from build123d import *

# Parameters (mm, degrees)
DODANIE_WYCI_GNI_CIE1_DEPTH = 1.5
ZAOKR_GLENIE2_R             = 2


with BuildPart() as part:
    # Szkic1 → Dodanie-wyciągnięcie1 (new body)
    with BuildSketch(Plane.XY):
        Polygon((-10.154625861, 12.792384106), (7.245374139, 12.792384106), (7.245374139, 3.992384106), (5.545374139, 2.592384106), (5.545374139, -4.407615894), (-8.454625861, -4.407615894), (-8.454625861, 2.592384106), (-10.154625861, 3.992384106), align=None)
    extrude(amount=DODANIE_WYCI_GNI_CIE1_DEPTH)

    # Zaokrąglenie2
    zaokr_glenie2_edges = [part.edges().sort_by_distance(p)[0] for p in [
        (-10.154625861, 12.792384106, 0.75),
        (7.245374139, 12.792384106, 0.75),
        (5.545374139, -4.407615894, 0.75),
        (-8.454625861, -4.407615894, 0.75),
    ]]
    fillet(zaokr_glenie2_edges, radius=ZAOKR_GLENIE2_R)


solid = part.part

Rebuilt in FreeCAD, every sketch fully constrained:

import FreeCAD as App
import Part
import Sketcher


def edges_at(feature, points):
    """Names of the edges that pass closest to the given points."""
    edges = feature.Shape.Edges
    near = lambda p: min(range(len(edges)), key=lambda i: edges[i].distToShape(Part.Vertex(*p))[0])
    return sorted({f"Edge{near(p) + 1}" for p in points})

doc = App.newDocument("Part")
body = doc.addObject("PartDesign::Body", "Body")

sketch1 = body.newObject("Sketcher::SketchObject", "Sketch")
sketch1.AttachmentSupport = (doc.getObject("XY_Plane"), [""])
sketch1.MapMode = "FlatFace"
sketch1.addGeometry([
    Part.LineSegment(App.Vector(7.2, 12.8, 0), App.Vector(-10.2, 12.8, 0)),
    Part.LineSegment(App.Vector(-10.2, 12.8, 0), App.Vector(-10.2, 4, 0)),
    Part.LineSegment(App.Vector(-10.2, 4, 0), App.Vector(-8.5, 2.6, 0)),
    Part.LineSegment(App.Vector(-8.5, 2.6, 0), App.Vector(-8.5, -4.4, 0)),
    Part.LineSegment(App.Vector(-8.5, -4.4, 0), App.Vector(5.5, -4.4, 0)),
    Part.LineSegment(App.Vector(5.5, -4.4, 0), App.Vector(5.5, 2.6, 0)),
    Part.LineSegment(App.Vector(5.5, 2.6, 0), App.Vector(7.2, 4, 0)),
    Part.LineSegment(App.Vector(7.2, 4, 0), App.Vector(7.2, 12.8, 0)),
], False)
sketch1.addConstraint([
    Sketcher.Constraint("Coincident", 0, 2, 1, 1),
    Sketcher.Constraint("Coincident", 1, 2, 2, 1),
    Sketcher.Constraint("Coincident", 2, 2, 3, 1),
    Sketcher.Constraint("Coincident", 3, 2, 4, 1),
    Sketcher.Constraint("Coincident", 4, 2, 5, 1),
    Sketcher.Constraint("Coincident", 5, 2, 6, 1),
    Sketcher.Constraint("Coincident", 6, 2, 7, 1),
    Sketcher.Constraint("Coincident", 7, 2, 0, 1),
    Sketcher.Constraint("Horizontal", 0),
    Sketcher.Constraint("Vertical", 1),
    Sketcher.Constraint("Vertical", 3),
    Sketcher.Constraint("Horizontal", 4),
    Sketcher.Constraint("Vertical", 5),
    Sketcher.Constraint("Vertical", 7),
    Sketcher.Constraint("Horizontal", 2, 2, 5, 2),
    Sketcher.Constraint("Horizontal", 1, 2, 6, 2),
    Sketcher.Constraint("Equal", 2, 6),
    Sketcher.Constraint("DistanceX", 4, 1, 4, 2, 14.0),
    Sketcher.Constraint("DistanceY", 3, 2, 3, 1, 7.0),
    Sketcher.Constraint("DistanceX", 0, 2, 0, 1, 17.4),
    Sketcher.Constraint("DistanceY", 1, 2, 1, 1, 8.8),
    Sketcher.Constraint("DistanceY", 2, 2, 1, 2, 1.4),
    Sketcher.Constraint("DistanceX", 0, 2, -1, 1, 10.154626),
    Sketcher.Constraint("DistanceY", -1, 1, 0, 2, 12.792384),
])
pad1 = body.newObject("PartDesign::Pad", "Pad")
pad1.Profile = sketch1
pad1.Length = 1.5
doc.recompute()

fillet = body.newObject("PartDesign::Fillet", "Fillet")
fillet.Base = (pad1, edges_at(pad1, [
    (-10.155, 12.792, 0.75),
    (7.245, 12.792, 0.75),
    (5.545, -4.408, 0.75),
    (-8.455, -4.408, 0.75),
]))
fillet.Radius = 2

doc.recompute()
